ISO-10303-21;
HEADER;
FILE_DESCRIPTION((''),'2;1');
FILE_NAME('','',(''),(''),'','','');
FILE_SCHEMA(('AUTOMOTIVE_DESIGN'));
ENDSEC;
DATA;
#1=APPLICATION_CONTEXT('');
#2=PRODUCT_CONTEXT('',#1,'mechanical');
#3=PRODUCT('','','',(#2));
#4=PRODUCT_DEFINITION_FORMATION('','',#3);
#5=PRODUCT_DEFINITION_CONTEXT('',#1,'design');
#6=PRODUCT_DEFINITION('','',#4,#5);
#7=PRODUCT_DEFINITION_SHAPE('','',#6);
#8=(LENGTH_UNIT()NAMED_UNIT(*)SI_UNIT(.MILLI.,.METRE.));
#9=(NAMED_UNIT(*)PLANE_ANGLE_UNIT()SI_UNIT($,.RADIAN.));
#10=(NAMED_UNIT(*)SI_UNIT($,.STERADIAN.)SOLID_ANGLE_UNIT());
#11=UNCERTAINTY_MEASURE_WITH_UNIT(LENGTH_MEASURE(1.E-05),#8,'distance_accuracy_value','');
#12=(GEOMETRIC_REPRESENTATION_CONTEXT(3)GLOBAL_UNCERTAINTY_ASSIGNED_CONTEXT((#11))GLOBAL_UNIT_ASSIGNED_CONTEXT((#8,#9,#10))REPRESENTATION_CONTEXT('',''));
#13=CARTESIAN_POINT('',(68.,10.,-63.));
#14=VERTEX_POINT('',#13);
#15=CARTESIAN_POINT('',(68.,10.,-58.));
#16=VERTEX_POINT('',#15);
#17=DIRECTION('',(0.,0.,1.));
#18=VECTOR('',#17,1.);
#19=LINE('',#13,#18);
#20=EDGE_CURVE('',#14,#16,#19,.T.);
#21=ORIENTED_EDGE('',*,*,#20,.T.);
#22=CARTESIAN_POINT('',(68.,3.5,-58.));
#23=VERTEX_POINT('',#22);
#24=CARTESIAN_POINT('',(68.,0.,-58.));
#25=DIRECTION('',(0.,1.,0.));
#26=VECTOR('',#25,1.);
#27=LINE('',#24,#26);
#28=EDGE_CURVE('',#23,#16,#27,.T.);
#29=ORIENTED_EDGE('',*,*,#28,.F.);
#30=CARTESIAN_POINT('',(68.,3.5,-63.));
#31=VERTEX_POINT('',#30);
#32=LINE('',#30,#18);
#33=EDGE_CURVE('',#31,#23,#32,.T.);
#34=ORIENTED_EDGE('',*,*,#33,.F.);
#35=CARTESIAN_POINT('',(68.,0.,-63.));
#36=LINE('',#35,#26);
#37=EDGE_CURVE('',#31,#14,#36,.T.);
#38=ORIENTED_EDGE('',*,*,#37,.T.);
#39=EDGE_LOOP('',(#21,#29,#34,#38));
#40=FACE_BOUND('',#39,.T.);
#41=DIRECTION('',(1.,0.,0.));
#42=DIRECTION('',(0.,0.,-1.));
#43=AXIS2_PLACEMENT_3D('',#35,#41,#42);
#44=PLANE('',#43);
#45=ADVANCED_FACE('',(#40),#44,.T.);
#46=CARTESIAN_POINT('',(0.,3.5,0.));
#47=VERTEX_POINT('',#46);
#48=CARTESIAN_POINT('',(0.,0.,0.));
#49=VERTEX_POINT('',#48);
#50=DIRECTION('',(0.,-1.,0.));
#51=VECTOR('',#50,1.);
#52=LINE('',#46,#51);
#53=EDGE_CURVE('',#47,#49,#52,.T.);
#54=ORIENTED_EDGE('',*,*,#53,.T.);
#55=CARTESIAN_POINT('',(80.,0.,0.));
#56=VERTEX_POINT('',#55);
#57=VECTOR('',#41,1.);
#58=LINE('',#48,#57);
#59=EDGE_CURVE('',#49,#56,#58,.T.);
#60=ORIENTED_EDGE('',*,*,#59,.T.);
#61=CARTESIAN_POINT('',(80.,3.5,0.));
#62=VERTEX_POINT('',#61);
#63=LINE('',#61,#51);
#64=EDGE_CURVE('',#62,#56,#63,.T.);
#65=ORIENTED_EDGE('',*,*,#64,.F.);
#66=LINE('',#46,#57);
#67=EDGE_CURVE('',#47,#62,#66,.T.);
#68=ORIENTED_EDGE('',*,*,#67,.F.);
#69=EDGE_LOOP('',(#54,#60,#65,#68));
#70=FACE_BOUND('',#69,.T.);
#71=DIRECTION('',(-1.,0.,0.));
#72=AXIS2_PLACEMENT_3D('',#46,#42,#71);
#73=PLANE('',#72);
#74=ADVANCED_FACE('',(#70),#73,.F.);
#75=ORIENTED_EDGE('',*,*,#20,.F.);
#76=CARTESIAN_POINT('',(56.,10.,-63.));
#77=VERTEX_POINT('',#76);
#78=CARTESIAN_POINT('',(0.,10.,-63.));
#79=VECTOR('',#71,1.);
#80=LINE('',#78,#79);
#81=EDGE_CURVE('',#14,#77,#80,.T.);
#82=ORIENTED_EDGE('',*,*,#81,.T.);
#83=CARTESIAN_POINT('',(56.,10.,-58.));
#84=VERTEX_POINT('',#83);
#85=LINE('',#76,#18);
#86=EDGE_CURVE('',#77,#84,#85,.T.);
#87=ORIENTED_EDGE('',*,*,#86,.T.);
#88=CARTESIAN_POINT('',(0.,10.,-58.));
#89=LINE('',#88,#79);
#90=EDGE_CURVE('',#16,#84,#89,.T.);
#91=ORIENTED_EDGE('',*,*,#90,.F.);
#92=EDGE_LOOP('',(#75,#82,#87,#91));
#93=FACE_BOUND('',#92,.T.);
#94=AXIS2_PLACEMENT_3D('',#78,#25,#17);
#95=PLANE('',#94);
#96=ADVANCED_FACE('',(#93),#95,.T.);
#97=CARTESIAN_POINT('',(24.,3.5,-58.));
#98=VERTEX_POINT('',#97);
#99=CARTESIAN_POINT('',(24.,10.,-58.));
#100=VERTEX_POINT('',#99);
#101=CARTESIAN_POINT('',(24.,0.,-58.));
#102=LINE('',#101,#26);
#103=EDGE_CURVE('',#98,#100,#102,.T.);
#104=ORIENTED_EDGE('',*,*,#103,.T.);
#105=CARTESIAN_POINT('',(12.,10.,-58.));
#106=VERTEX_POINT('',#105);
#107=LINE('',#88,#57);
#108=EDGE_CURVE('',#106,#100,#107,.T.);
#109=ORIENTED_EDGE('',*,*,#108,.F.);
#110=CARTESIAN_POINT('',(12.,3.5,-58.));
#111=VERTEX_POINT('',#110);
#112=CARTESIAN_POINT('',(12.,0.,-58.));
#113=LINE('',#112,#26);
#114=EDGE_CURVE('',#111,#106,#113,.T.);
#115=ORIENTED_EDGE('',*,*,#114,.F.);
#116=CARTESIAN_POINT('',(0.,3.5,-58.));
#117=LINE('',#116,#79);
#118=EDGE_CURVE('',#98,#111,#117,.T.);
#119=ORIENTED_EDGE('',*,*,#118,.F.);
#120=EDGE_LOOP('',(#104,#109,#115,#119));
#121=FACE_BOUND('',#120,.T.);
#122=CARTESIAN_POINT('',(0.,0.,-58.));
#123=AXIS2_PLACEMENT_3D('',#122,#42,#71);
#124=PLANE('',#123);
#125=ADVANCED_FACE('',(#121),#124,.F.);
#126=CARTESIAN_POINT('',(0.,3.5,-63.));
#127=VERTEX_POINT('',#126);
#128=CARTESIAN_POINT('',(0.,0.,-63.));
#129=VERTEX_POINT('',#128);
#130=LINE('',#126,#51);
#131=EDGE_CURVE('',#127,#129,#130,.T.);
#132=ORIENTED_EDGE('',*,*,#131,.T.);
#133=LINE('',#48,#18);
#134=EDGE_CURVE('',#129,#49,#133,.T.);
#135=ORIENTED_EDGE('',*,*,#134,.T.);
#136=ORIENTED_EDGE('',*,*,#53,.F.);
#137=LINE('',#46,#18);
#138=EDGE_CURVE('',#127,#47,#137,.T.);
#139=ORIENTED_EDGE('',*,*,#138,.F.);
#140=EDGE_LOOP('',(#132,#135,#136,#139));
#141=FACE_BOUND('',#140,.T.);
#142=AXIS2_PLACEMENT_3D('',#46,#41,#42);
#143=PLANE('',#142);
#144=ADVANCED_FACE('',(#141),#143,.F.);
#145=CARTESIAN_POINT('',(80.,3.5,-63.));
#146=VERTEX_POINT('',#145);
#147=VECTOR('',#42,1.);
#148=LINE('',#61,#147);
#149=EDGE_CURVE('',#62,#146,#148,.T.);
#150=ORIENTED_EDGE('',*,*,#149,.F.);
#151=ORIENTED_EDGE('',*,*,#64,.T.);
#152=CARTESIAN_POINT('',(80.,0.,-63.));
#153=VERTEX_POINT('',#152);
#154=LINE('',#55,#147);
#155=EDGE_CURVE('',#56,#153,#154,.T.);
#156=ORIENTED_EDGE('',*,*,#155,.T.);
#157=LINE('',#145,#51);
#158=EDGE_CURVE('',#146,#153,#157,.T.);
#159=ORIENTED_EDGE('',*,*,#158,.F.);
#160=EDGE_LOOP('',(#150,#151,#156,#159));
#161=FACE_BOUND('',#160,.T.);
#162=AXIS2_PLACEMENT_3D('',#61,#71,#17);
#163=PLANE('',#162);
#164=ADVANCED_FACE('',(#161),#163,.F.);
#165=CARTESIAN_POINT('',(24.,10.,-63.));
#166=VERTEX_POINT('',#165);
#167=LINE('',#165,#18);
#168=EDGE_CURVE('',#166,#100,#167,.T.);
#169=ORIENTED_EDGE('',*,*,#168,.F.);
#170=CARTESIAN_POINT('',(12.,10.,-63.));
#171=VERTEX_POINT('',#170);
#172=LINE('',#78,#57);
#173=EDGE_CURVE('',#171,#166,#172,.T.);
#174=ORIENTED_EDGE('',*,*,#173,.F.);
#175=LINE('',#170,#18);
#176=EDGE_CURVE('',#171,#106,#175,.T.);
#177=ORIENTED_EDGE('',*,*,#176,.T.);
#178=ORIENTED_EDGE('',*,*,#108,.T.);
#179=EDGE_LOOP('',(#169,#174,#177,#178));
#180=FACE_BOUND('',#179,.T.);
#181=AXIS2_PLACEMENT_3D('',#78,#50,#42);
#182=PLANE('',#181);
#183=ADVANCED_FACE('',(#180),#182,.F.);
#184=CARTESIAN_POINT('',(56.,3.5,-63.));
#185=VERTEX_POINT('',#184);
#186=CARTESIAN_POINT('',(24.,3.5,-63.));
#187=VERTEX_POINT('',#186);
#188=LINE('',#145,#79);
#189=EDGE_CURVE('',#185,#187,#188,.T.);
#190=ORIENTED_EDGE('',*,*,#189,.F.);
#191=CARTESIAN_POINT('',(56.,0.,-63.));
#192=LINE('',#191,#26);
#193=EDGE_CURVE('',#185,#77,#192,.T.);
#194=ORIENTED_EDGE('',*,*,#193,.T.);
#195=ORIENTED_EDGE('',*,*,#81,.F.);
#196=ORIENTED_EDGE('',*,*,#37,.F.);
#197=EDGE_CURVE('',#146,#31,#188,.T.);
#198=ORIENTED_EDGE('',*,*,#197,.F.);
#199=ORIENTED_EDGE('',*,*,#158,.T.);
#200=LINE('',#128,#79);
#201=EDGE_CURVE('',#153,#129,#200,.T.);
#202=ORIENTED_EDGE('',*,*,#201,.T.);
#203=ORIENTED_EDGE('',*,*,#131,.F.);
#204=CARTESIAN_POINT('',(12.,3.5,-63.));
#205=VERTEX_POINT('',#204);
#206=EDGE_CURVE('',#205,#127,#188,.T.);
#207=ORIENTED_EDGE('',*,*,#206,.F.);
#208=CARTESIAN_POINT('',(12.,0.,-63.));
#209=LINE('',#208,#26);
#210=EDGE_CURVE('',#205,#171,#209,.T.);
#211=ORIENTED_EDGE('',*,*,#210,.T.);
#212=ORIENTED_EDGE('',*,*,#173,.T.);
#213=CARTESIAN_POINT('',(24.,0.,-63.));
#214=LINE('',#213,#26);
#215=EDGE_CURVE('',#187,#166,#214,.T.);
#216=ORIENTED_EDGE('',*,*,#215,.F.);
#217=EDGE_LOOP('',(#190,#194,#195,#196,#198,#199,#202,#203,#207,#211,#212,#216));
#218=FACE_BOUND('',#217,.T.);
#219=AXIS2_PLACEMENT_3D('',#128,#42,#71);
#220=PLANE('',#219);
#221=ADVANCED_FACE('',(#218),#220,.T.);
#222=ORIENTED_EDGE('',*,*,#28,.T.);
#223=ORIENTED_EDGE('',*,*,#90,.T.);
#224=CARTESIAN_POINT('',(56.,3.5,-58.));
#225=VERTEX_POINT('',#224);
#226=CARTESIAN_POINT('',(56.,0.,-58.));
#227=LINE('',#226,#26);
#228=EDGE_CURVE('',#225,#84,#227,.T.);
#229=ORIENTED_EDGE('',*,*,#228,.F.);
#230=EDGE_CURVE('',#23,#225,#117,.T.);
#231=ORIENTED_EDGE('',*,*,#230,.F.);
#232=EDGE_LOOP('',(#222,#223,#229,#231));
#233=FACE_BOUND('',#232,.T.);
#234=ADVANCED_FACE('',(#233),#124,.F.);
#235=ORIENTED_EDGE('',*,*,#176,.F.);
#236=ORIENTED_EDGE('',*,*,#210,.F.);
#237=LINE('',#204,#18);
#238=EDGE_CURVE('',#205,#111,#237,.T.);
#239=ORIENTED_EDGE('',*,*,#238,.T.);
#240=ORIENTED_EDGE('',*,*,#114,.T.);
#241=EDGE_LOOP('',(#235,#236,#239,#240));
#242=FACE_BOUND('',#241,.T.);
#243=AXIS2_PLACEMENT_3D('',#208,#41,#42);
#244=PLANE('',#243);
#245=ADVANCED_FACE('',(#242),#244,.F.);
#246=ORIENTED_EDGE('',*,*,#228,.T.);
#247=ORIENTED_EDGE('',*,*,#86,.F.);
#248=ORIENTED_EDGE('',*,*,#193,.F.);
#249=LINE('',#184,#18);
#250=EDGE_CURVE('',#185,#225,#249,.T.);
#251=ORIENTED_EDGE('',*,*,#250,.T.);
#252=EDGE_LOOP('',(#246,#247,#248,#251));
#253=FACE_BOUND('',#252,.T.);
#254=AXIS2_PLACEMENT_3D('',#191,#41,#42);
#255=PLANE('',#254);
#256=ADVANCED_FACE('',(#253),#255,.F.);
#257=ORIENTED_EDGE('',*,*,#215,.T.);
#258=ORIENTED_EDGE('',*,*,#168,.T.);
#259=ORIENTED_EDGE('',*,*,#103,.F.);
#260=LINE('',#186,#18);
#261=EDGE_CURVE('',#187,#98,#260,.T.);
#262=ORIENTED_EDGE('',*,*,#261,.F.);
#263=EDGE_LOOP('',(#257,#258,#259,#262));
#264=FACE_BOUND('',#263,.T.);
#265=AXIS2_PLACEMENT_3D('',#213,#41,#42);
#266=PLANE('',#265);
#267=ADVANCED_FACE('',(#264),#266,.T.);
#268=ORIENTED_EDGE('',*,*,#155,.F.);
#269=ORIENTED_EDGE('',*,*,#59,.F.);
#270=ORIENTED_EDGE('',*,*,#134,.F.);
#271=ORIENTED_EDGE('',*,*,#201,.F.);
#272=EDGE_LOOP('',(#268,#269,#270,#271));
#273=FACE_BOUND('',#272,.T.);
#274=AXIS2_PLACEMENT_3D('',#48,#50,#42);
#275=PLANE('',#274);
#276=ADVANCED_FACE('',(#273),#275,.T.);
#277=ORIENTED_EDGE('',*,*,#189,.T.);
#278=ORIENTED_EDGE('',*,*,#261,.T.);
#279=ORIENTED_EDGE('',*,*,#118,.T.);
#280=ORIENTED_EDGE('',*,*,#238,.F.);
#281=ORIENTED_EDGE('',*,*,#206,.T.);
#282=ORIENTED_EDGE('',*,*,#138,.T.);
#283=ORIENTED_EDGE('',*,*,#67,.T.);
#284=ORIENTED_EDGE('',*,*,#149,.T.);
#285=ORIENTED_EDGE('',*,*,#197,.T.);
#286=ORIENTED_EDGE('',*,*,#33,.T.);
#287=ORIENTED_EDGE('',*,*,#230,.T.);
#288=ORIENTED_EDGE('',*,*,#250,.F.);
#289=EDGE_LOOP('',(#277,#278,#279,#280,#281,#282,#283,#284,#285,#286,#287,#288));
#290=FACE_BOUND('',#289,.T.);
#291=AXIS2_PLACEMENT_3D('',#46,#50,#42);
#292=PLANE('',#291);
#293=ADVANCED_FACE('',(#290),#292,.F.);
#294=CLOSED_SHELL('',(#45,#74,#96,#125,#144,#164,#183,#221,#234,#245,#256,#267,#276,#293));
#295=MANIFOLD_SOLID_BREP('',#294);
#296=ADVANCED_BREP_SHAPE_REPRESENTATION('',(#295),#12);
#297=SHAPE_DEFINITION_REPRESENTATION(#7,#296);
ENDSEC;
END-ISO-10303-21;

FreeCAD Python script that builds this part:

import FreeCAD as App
import Part
import Sketcher


def add_polygon(sketch, points):
    """Adds a closed chain of lines whose ends are joined by coincident constraints."""
    first, n = sketch.GeometryCount, len(points)
    for a, b in zip(points, points[1:] + points[:1]):
        sketch.addGeometry(Part.LineSegment(App.Vector(*a, 0), App.Vector(*b, 0)), False)
    for i in range(n):
        sketch.addConstraint(Sketcher.Constraint("Coincident", first + i, 2, first + (i + 1) % n, 1))

doc = App.newDocument("Part")
params = doc.addObject("Spreadsheet::Sheet", "Params")
for row, (alias, value) in enumerate([
    ("sketch1_width", "80 mm"),
    ("sketch1_height", "58 mm"),
    ("pad1_length", "3.5 mm"),
    ("sketch2_width", "12 mm"),
    ("sketch2_width2", "80 mm"),
    ("sketch2_height", "3.5 mm"),
    ("sketch2_height2", "6.5 mm"),
    ("pad2_length", "5 mm"),
], start=1):
    params.set(f"A{row}", alias)
    params.set(f"B{row}", "=" + value)
    params.setAlias(f"B{row}", alias)

body = doc.addObject("PartDesign::Body", "Body")

# Sketch on XZ plane
sketch1 = body.newObject("Sketcher::SketchObject", "Sketch")
sketch1.AttachmentSupport = (doc.getObject("XZ_Plane"), [""])
sketch1.MapMode = "FlatFace"
add_polygon(sketch1, [(0, -58), (0, 0), (80, 0), (80, -58)])  # lines 0-3
sketch1.addConstraint([
    Sketcher.Constraint("Vertical", 0),
    Sketcher.Constraint("Horizontal", 1),
    Sketcher.Constraint("Vertical", 2),
    Sketcher.Constraint("Horizontal", 3),
    Sketcher.Constraint("Coincident", 0, 2, -1, 1),
    Sketcher.Constraint("DistanceX", 1, 1, 1, 2, 80.0),
    Sketcher.Constraint("DistanceY", 0, 1, 0, 2, 58.0),
])
sketch1.setExpression("Constraints[9]", "Params.sketch1_width")
sketch1.setExpression("Constraints[10]", "Params.sketch1_height")
pad1 = body.newObject("PartDesign::Pad", "Pad")
pad1.Profile = sketch1
pad1.setExpression("Length", "Params.pad1_length")
pad1.Reversed = True

# Sketch on XY plane
sketch2 = body.newObject("Sketcher::SketchObject", "Sketch001")
sketch2.AttachmentSupport = (doc.getObject("XY_Plane"), [""])
sketch2.MapMode = "FlatFace"
sketch2.AttachmentOffset = App.Placement(App.Vector(0, 0, -58), App.Rotation())
add_polygon(sketch2, [(68, 3.5), (80, 3.5), (80, 0), (0, 0), (0, 3.5), (12, 3.5), (12, 10), (24, 10), (24, 3.5), (56, 3.5), (56, 10), (68, 10)])  # lines 0-11
sketch2.addConstraint([
    Sketcher.Constraint("Horizontal", 0),
    Sketcher.Constraint("Vertical", 1),
    Sketcher.Constraint("Horizontal", 2),
    Sketcher.Constraint("Vertical", 3),
    Sketcher.Constraint("Horizontal", 4),
    Sketcher.Constraint("Vertical", 5),
    Sketcher.Constraint("Horizontal", 6),
    Sketcher.Constraint("Vertical", 7),
    Sketcher.Constraint("Horizontal", 8),
    Sketcher.Constraint("Vertical", 9),
    Sketcher.Constraint("Horizontal", 10),
    Sketcher.Constraint("Vertical", 11),
    Sketcher.Constraint("Coincident", 2, 2, -1, 1),
    Sketcher.Constraint("Horizontal", 0, 2, 3, 2),
    Sketcher.Constraint("Horizontal", 4, 2, 7, 2),
    Sketcher.Constraint("Horizontal", 6, 2, 9, 2),
    Sketcher.Constraint("Equal", 0, 4),
    Sketcher.Constraint("Equal", 4, 6),
    Sketcher.Constraint("Equal", 6, 10),
    Sketcher.Constraint("DistanceX", 0, 1, 0, 2, 12.0),
    Sketcher.Constraint("DistanceX", 2, 2, 2, 1, 80.0),
    Sketcher.Constraint("DistanceY", 1, 2, 1, 1, 3.5),
    Sketcher.Constraint("DistanceY", 5, 1, 5, 2, 6.5),
])
sketch2.setExpression("Constraints[31]", "Params.sketch2_width")
sketch2.setExpression("Constraints[32]", "Params.sketch2_width2")
sketch2.setExpression("Constraints[33]", "Params.sketch2_height")
sketch2.setExpression("Constraints[34]", "Params.sketch2_height2")
pad2 = body.newObject("PartDesign::Pad", "Pad001")
pad2.Profile = sketch2
pad2.setExpression("Length", "Params.pad2_length")
pad2.Reversed = True

doc.recompute()
